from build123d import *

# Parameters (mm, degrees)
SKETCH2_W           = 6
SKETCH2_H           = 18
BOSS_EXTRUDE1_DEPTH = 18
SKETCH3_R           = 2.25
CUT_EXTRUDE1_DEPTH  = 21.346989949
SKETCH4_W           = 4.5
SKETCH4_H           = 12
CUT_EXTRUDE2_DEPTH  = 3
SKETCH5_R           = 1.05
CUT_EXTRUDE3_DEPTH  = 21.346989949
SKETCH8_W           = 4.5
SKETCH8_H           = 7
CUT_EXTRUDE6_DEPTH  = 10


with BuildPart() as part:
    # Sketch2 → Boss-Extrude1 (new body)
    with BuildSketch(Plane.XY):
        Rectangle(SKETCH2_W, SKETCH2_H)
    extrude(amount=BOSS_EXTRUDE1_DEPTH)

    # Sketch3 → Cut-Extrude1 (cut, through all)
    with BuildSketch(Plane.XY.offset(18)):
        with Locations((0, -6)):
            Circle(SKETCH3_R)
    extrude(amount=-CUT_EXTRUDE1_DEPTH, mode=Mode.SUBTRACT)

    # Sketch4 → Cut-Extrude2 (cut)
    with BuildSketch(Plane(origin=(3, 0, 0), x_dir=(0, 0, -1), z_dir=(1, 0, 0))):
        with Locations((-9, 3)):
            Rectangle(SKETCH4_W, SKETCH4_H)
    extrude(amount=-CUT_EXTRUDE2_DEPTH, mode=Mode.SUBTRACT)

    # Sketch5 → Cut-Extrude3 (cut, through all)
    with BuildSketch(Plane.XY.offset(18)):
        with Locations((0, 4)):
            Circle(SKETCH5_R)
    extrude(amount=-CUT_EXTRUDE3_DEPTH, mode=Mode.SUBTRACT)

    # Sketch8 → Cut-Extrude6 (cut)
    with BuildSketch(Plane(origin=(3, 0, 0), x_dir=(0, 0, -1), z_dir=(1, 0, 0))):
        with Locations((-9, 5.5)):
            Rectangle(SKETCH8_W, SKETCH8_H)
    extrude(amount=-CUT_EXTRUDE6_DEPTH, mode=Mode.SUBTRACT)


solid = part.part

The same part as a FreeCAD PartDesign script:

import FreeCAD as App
import Part
import Sketcher

doc = App.newDocument("Part")
body = doc.addObject("PartDesign::Body", "Body")

# Sketch on XY plane
sketch1 = body.newObject("Sketcher::SketchObject", "Sketch")
sketch1.AttachmentSupport = (doc.getObject("XY_Plane"), [""])
sketch1.MapMode = "FlatFace"
sketch1.addGeometry([
    Part.LineSegment(App.Vector(-3, 9, 0), App.Vector(-3, -9, 0)),
    Part.LineSegment(App.Vector(-3, -9, 0), App.Vector(3, -9, 0)),
    Part.LineSegment(App.Vector(3, -9, 0), App.Vector(3, 9, 0)),
    Part.LineSegment(App.Vector(3, 9, 0), App.Vector(-3, 9, 0)),
], False)
sketch1.addConstraint([
    Sketcher.Constraint("Coincident", 0, 2, 1, 1),
    Sketcher.Constraint("Coincident", 1, 2, 2, 1),
    Sketcher.Constraint("Coincident", 2, 2, 3, 1),
    Sketcher.Constraint("Coincident", 3, 2, 0, 1),
    Sketcher.Constraint("Vertical", 0),
    Sketcher.Constraint("Horizontal", 1),
    Sketcher.Constraint("Vertical", 2),
    Sketcher.Constraint("Horizontal", 3),
    Sketcher.Constraint("Symmetric", 0, 2, 2, 2, -1, 1),
    Sketcher.Constraint("DistanceX", 1, 1, 1, 2, 6.0),
    Sketcher.Constraint("DistanceY", 0, 2, 0, 1, 18.0),
])
pad1 = body.newObject("PartDesign::Pad", "Pad")
pad1.Profile = sketch1
pad1.Length = 18

# Sketch on XY plane
sketch2 = body.newObject("Sketcher::SketchObject", "Sketch001")
sketch2.AttachmentSupport = (doc.getObject("XY_Plane"), [""])
sketch2.MapMode = "FlatFace"
sketch2.AttachmentOffset = App.Placement(App.Vector(0, 0, 18), App.Rotation())
sketch2.addGeometry(Part.Circle(App.Vector(0, -6, 0), App.Vector(0, 0, 1), 2.25), False)
sketch2.addConstraint([
    Sketcher.Constraint("PointOnObject", 0, 3, -2),
    Sketcher.Constraint("Diameter", 0, 4.5),
    Sketcher.Constraint("DistanceY", 0, 3, -1, 1, 6.0),
])
pocket1 = body.newObject("PartDesign::Pocket", "Pocket")
pocket1.Profile = sketch2
pocket1.Type = "ThroughAll"

# Sketch on YZ plane
sketch3 = body.newObject("Sketcher::SketchObject", "Sketch002")
sketch3.AttachmentSupport = (doc.getObject("YZ_Plane"), [""])
sketch3.MapMode = "FlatFace"
sketch3.AttachmentOffset = App.Placement(App.Vector(0, 0, 3), App.Rotation())
sketch3.addGeometry([
    Part.LineSegment(App.Vector(9, 11.25, 0), App.Vector(-3, 11.25, 0)),
    Part.LineSegment(App.Vector(-3, 11.25, 0), App.Vector(-3, 6.75, 0)),
    Part.LineSegment(App.Vector(-3, 6.75, 0), App.Vector(9, 6.75, 0)),
    Part.LineSegment(App.Vector(9, 6.75, 0), App.Vector(9, 11.25, 0)),
], False)
sketch3.addConstraint([
    Sketcher.Constraint("Coincident", 0, 2, 1, 1),
    Sketcher.Constraint("Coincident", 1, 2, 2, 1),
    Sketcher.Constraint("Coincident", 2, 2, 3, 1),
    Sketcher.Constraint("Coincident", 3, 2, 0, 1),
    Sketcher.Constraint("Horizontal", 0),
    Sketcher.Constraint("Vertical", 1),
    Sketcher.Constraint("Horizontal", 2),
    Sketcher.Constraint("Vertical", 3),
    Sketcher.Constraint("DistanceX", 0, 2, 0, 1, 12.0),
    Sketcher.Constraint("DistanceY", 1, 2, 1, 1, 4.5),
    Sketcher.Constraint("DistanceX", 0, 2, -1, 1, 3.0),
    Sketcher.Constraint("DistanceY", -1, 1, 0, 2, 11.25),
])
pocket2 = body.newObject("PartDesign::Pocket", "Pocket001")
pocket2.Profile = sketch3
pocket2.Length = 3

# Sketch on XY plane
sketch4 = body.newObject("Sketcher::SketchObject", "Sketch003")
sketch4.AttachmentSupport = (doc.getObject("XY_Plane"), [""])
sketch4.MapMode = "FlatFace"
sketch4.AttachmentOffset = App.Placement(App.Vector(0, 0, 18), App.Rotation())
sketch4.addGeometry(Part.Circle(App.Vector(0, 4, 0), App.Vector(0, 0, 1), 1.05), False)
sketch4.addConstraint([
    Sketcher.Constraint("PointOnObject", 0, 3, -2),
    Sketcher.Constraint("Diameter", 0, 2.1),
    Sketcher.Constraint("DistanceY", -1, 1, 0, 3, 4.0),
])
pocket3 = body.newObject("PartDesign::Pocket", "Pocket002")
pocket3.Profile = sketch4
pocket3.Type = "ThroughAll"

# Sketch on YZ plane
sketch5 = body.newObject("Sketcher::SketchObject", "Sketch004")
sketch5.AttachmentSupport = (doc.getObject("YZ_Plane"), [""])
sketch5.MapMode = "FlatFace"
sketch5.AttachmentOffset = App.Placement(App.Vector(0, 0, 3), App.Rotation())
sketch5.addGeometry([
    Part.LineSegment(App.Vector(9, 11.25, 0), App.Vector(2, 11.25, 0)),
    Part.LineSegment(App.Vector(2, 11.25, 0), App.Vector(2, 6.75, 0)),
    Part.LineSegment(App.Vector(2, 6.75, 0), App.Vector(9, 6.75, 0)),
    Part.LineSegment(App.Vector(9, 6.75, 0), App.Vector(9, 11.25, 0)),
], False)
sketch5.addConstraint([
    Sketcher.Constraint("Coincident", 0, 2, 1, 1),
    Sketcher.Constraint("Coincident", 1, 2, 2, 1),
    Sketcher.Constraint("Coincident", 2, 2, 3, 1),
    Sketcher.Constraint("Coincident", 3, 2, 0, 1),
    Sketcher.Constraint("Horizontal", 0),
    Sketcher.Constraint("Vertical", 1),
    Sketcher.Constraint("Horizontal", 2),
    Sketcher.Constraint("Vertical", 3),
    Sketcher.Constraint("DistanceX", 0, 2, 0, 1, 7.0),
    Sketcher.Constraint("DistanceY", 1, 2, 1, 1, 4.5),
    Sketcher.Constraint("DistanceX", -1, 1, 0, 2, 2.0),
    Sketcher.Constraint("DistanceY", -1, 1, 0, 2, 11.25),
])
pocket4 = body.newObject("PartDesign::Pocket", "Pocket003")
pocket4.Profile = sketch5
pocket4.Length = 10

doc.recompute()
